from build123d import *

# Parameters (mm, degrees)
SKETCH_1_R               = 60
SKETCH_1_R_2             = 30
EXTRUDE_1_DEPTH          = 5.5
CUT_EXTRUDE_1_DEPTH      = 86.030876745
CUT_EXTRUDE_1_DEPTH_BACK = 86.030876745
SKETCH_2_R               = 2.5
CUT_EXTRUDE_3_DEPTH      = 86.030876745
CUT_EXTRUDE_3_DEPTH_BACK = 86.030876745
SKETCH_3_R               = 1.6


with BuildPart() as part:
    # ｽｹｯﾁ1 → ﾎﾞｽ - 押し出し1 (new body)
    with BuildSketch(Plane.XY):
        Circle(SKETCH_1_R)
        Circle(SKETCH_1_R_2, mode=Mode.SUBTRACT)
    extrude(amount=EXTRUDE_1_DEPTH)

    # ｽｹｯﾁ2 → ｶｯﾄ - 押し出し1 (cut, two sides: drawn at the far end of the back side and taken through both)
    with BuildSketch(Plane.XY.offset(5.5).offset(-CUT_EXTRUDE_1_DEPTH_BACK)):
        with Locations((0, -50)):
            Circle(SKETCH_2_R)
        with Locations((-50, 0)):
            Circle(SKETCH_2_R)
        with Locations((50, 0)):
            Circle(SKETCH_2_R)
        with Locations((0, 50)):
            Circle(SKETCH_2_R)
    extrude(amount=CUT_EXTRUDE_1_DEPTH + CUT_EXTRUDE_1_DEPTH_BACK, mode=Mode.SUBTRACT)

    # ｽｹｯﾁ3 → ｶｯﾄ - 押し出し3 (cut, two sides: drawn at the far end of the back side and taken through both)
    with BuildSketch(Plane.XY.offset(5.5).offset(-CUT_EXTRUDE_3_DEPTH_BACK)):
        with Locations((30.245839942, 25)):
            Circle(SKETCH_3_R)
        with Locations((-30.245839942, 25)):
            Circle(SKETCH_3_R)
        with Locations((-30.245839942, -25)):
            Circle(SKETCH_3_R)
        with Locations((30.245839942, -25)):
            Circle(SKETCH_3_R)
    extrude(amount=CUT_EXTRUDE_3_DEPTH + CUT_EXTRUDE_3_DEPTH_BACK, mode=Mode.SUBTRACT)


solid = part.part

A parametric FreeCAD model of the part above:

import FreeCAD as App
import Part
import Sketcher

doc = App.newDocument("Part")
params = doc.addObject("Spreadsheet::Sheet", "Params")
for row, (alias, value) in enumerate([
    ("sketch1_diameter", "120 mm"),
    ("sketch1_diameter2", "60 mm"),
    ("pad1_length", "5.5 mm"),
    ("sketch2_diameter", "5 mm"),
    ("sketch3_diameter", "3.2 mm"),
], start=1):
    params.set(f"A{row}", alias)
    params.set(f"B{row}", "=" + value)
    params.setAlias(f"B{row}", alias)

body = doc.addObject("PartDesign::Body", "Body")

sketch1 = doc.addObject("Sketcher::SketchObject", "Sketch")
body.addObject(sketch1)
sketch1.AttachmentSupport = (doc.XY_Plane, [""])
sketch1.MapMode = "FlatFace"
sketch1.addGeometry([
    Part.Circle(App.Vector(0, 0, 0), App.Vector(0, 0, 1), 60),
    Part.Circle(App.Vector(0, 0, 0), App.Vector(0, 0, 1), 30),
], False)
sketch1.addConstraint([
    Sketcher.Constraint("Coincident", 0, 3, -1, 1),
    Sketcher.Constraint("Coincident", 1, 3, -1, 1),
    Sketcher.Constraint("Diameter", 0, 120.0),
    Sketcher.Constraint("Diameter", 1, 60.0),
])
sketch1.setExpression("Constraints[2]", "Params.sketch1_diameter")
sketch1.setExpression("Constraints[3]", "Params.sketch1_diameter2")
pad1 = doc.addObject("PartDesign::Pad", "Pad")
body.addObject(pad1)
pad1.Profile = sketch1
pad1.setExpression("Length", "Params.pad1_length")

sketch2 = doc.addObject("Sketcher::SketchObject", "Sketch001")
body.addObject(sketch2)
sketch2.AttachmentSupport = (doc.XY_Plane, [""])
sketch2.MapMode = "FlatFace"
sketch2.AttachmentOffset = App.Placement(App.Vector(0, 0, 5.5), App.Rotation())
sketch2.addGeometry([
    Part.Circle(App.Vector(0, -50, 0), App.Vector(0, 0, 1), 2.5),
    Part.Circle(App.Vector(-50, 0, 0), App.Vector(0, 0, 1), 2.5),
    Part.Circle(App.Vector(50, 0, 0), App.Vector(0, 0, 1), 2.5),
    Part.Circle(App.Vector(0, 50, 0), App.Vector(0, 0, 1), 2.5),
], False)
sketch2.addConstraint([
    Sketcher.Constraint("Equal", 0, 1),
    Sketcher.Constraint("Equal", 1, 2),
    Sketcher.Constraint("Equal", 2, 3),
    Sketcher.Constraint("Symmetric", 1, 3, 2, 3, -1, 1),
    Sketcher.Constraint("Symmetric", 0, 3, 3, 3, -1, 1),
    Sketcher.Constraint("PointOnObject", 0, 3, -2),
    Sketcher.Constraint("PointOnObject", 1, 3, -1),
    Sketcher.Constraint("Diameter", 0, 5.0),
    Sketcher.Constraint("DistanceY", 0, 3, -1, 1, 50.0),
    Sketcher.Constraint("DistanceX", 1, 3, -1, 1, 50.0),
])
sketch2.setExpression("Constraints[7]", "Params.sketch2_diameter")
pocket1 = doc.addObject("PartDesign::Pocket", "Pocket")
body.addObject(pocket1)
pocket1.Profile = sketch2
pocket1.Type = "ThroughAll"
pocket1.Midplane = True

sketch3 = doc.addObject("Sketcher::SketchObject", "Sketch002")
body.addObject(sketch3)
sketch3.AttachmentSupport = (doc.XY_Plane, [""])
sketch3.MapMode = "FlatFace"
sketch3.AttachmentOffset = App.Placement(App.Vector(0, 0, 5.5), App.Rotation())
sketch3.addGeometry([
    Part.Circle(App.Vector(30.24584, 25, 0), App.Vector(0, 0, 1), 1.6),
    Part.Circle(App.Vector(-30.24584, 25, 0), App.Vector(0, 0, 1), 1.6),
    Part.Circle(App.Vector(-30.24584, -25, 0), App.Vector(0, 0, 1), 1.6),
    Part.Circle(App.Vector(30.24584, -25, 0), App.Vector(0, 0, 1), 1.6),
], False)
sketch3.addConstraint([
    Sketcher.Constraint("Equal", 0, 1),
    Sketcher.Constraint("Equal", 1, 2),
    Sketcher.Constraint("Equal", 2, 3),
    Sketcher.Constraint("Symmetric", 0, 3, 2, 3, -1, 1),
    Sketcher.Constraint("Symmetric", 1, 3, 3, 3, -1, 1),
    Sketcher.Constraint("Symmetric", 0, 3, 1, 3, -2),
    Sketcher.Constraint("Diameter", 0, 3.2),
    Sketcher.Constraint("DistanceY", -1, 1, 0, 3, 25.0),
    Sketcher.Constraint("DistanceX", -1, 1, 0, 3, 30.24584),
])
sketch3.setExpression("Constraints[6]", "Params.sketch3_diameter")
pocket2 = doc.addObject("PartDesign::Pocket", "Pocket001")
body.addObject(pocket2)
pocket2.Profile = sketch3
pocket2.Type = "ThroughAll"
pocket2.Midplane = True

doc.recompute()
